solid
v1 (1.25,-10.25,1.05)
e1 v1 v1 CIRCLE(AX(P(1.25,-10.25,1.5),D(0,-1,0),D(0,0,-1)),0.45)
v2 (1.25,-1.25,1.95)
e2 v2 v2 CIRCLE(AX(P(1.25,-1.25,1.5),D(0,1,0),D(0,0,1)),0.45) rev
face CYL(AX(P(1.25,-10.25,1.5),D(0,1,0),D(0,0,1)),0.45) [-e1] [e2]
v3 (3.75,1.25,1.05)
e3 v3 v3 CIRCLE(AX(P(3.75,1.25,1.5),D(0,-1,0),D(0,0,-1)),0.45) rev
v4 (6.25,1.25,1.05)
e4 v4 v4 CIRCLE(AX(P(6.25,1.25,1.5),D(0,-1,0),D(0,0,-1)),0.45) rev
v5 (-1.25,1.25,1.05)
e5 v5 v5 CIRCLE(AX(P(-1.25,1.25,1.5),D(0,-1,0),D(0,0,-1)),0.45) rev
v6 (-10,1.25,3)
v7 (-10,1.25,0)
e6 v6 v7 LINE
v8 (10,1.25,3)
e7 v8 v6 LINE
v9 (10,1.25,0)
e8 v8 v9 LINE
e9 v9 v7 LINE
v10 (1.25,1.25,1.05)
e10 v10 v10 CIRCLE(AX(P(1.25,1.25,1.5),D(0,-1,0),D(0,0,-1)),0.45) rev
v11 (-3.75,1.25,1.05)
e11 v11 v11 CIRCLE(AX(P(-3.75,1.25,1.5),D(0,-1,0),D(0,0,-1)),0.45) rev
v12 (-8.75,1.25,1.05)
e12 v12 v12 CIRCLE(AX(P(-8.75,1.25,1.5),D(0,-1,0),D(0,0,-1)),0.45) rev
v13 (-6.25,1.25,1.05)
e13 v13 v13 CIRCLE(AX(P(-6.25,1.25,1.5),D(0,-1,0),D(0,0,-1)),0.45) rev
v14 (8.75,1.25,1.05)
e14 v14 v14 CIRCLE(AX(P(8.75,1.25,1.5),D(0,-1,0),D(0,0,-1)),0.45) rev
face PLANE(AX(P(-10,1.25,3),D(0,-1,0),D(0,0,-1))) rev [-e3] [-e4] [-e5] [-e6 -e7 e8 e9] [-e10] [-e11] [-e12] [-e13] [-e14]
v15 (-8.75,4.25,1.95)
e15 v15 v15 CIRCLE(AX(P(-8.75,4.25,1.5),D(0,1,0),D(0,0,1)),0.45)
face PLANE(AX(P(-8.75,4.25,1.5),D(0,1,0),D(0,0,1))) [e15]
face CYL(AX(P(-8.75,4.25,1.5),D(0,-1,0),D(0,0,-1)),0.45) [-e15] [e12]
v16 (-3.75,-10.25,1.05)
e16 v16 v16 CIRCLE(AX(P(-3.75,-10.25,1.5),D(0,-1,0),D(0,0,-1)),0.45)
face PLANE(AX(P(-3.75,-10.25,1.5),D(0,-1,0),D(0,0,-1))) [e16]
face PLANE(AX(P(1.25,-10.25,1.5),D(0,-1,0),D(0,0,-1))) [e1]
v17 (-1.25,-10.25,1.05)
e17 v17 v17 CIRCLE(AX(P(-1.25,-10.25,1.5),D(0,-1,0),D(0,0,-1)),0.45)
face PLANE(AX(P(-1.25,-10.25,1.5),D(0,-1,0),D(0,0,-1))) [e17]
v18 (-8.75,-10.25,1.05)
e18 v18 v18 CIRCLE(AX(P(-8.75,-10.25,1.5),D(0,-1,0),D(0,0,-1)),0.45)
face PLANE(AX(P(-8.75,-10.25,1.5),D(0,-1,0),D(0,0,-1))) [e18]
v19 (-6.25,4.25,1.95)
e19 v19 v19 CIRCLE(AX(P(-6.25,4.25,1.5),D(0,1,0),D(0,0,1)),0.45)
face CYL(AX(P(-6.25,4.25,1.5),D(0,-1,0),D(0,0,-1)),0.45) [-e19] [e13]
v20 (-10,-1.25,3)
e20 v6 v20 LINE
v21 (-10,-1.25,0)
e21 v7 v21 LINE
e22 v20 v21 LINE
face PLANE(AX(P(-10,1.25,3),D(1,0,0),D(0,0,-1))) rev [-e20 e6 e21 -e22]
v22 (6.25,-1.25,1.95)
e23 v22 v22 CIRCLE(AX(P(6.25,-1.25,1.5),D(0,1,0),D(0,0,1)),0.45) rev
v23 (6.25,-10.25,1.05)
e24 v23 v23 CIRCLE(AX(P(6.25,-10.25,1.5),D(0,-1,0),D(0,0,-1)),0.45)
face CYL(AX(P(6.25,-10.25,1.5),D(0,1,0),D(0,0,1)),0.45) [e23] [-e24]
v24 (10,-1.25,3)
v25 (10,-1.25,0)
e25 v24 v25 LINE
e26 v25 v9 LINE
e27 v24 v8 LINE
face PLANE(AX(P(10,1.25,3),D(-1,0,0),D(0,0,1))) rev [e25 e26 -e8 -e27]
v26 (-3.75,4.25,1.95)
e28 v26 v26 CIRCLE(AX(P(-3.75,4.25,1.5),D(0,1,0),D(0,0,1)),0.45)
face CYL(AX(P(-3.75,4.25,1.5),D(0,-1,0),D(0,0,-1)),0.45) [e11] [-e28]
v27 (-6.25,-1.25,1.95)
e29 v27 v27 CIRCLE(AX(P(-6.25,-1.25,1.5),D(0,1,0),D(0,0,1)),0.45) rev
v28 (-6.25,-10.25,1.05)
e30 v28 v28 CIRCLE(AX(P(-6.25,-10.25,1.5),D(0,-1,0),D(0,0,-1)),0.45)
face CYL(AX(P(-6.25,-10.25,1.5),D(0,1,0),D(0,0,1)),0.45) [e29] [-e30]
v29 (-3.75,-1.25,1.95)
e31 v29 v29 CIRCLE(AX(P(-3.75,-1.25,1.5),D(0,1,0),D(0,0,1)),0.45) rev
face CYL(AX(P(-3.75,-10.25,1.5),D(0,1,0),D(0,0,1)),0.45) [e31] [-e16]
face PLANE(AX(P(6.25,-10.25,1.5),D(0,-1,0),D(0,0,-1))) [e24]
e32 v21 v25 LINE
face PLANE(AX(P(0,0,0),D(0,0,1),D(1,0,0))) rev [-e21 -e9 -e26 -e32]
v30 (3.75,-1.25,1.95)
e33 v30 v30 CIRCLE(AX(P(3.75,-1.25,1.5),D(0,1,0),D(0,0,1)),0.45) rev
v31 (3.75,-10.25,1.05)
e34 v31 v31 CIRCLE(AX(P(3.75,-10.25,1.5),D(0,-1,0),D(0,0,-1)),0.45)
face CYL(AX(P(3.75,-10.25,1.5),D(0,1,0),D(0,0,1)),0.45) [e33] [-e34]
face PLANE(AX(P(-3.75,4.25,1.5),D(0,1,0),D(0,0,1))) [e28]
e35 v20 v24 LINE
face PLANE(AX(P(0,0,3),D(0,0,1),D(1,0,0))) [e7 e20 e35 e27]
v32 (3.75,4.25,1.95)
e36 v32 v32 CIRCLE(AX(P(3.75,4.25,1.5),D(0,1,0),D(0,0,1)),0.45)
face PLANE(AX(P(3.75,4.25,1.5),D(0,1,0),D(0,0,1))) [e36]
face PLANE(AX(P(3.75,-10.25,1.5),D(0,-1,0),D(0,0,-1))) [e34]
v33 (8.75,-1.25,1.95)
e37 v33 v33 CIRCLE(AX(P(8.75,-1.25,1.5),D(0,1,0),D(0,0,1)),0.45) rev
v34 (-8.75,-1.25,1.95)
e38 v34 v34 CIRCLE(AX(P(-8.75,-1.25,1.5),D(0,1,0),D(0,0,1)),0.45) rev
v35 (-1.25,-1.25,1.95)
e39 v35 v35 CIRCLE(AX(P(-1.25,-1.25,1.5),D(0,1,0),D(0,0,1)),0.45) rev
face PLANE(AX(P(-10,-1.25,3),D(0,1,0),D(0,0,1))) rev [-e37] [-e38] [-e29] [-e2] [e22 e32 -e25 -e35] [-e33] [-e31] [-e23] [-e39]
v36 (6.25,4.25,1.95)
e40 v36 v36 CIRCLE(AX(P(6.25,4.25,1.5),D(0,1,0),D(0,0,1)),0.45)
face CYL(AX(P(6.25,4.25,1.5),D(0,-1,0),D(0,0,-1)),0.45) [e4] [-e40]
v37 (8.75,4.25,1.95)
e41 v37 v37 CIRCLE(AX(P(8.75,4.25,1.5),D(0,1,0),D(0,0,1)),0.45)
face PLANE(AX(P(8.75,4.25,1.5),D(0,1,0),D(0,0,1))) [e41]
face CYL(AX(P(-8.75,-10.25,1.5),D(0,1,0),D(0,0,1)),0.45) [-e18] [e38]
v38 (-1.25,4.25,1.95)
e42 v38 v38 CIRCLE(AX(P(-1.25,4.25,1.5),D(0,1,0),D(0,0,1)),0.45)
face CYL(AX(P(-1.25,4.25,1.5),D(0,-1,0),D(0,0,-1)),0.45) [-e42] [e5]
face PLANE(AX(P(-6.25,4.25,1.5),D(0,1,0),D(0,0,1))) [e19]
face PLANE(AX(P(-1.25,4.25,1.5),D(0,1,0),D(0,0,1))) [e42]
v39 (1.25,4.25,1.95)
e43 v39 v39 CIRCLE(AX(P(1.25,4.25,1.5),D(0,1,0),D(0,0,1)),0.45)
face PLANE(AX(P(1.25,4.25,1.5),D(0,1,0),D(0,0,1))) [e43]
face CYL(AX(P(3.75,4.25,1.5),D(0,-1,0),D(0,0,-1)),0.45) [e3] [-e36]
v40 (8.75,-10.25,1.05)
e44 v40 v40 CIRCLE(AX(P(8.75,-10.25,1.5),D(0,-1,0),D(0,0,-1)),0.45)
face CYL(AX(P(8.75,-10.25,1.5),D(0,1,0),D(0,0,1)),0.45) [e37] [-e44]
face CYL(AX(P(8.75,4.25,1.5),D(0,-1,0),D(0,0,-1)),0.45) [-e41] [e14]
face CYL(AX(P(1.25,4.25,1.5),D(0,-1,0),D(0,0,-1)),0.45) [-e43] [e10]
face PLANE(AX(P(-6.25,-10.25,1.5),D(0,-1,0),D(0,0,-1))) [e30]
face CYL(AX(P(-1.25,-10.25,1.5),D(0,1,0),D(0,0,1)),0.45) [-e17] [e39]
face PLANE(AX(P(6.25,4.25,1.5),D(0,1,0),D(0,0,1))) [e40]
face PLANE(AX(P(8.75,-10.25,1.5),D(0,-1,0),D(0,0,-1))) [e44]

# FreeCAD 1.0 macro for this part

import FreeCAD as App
import Part
import Sketcher
from FreeCAD import Vector

doc = App.newDocument("Part")
body = doc.addObject("PartDesign::Body", "Body")

# Sketch on XY plane
sketch1 = doc.addObject("Sketcher::SketchObject", "Sketch")
body.addObject(sketch1)
sketch1.AttachmentSupport = (doc.XY_Plane, [""])
sketch1.MapMode = "FlatFace"
sketch1.addGeometry(Part.LineSegment(Vector(-10, 1.2, 0), Vector(-10, -1.2, 0)), False)
sketch1.addGeometry(Part.LineSegment(Vector(-10, -1.2, 0), Vector(10, -1.2, 0)), False)
sketch1.addGeometry(Part.LineSegment(Vector(10, -1.2, 0), Vector(10, 1.2, 0)), False)
sketch1.addGeometry(Part.LineSegment(Vector(10, 1.2, 0), Vector(-10, 1.2, 0)), False)
sketch1.addConstraint(Sketcher.Constraint("Coincident", 0, 2, 1, 1))
sketch1.addConstraint(Sketcher.Constraint("Coincident", 1, 2, 2, 1))
sketch1.addConstraint(Sketcher.Constraint("Coincident", 2, 2, 3, 1))
sketch1.addConstraint(Sketcher.Constraint("Coincident", 3, 2, 0, 1))
sketch1.addConstraint(Sketcher.Constraint("Vertical", 0))
sketch1.addConstraint(Sketcher.Constraint("Horizontal", 1))
sketch1.addConstraint(Sketcher.Constraint("Vertical", 2))
sketch1.addConstraint(Sketcher.Constraint("Horizontal", 3))
sketch1.addConstraint(Sketcher.Constraint("Symmetric", 0, 2, 2, 2, -1, 1))
sketch1.addConstraint(Sketcher.Constraint("DistanceX", 1, 1, 1, 2, 20.0))
sketch1.addConstraint(Sketcher.Constraint("DistanceY", 0, 2, 0, 1, 2.5))
pad1 = doc.addObject("PartDesign::Pad", "Pad")
body.addObject(pad1)
pad1.Profile = sketch1
pad1.Length = 3

# Sketch on XZ plane
sketch2 = doc.addObject("Sketcher::SketchObject", "Sketch001")
body.addObject(sketch2)
sketch2.AttachmentSupport = (doc.XZ_Plane, [""])
sketch2.MapMode = "FlatFace"
sketch2.AttachmentOffset = App.Placement(Vector(0, 0, -1.25), App.Rotation())
sketch2.addGeometry(Part.Circle(Vector(-8.75, 1.5, 0), Vector(0, 0, 1), 0.45), False)
sketch2.addGeometry(Part.Circle(Vector(-6.25, 1.5, 0), Vector(0, 0, 1), 0.45), False)
sketch2.addGeometry(Part.Circle(Vector(-3.75, 1.5, 0), Vector(0, 0, 1), 0.45), False)
sketch2.addGeometry(Part.Circle(Vector(-1.25, 1.5, 0), Vector(0, 0, 1), 0.45), False)
sketch2.addGeometry(Part.Circle(Vector(1.25, 1.5, 0), Vector(0, 0, 1), 0.45), False)
sketch2.addGeometry(Part.Circle(Vector(3.75, 1.5, 0), Vector(0, 0, 1), 0.45), False)
sketch2.addGeometry(Part.Circle(Vector(6.25, 1.5, 0), Vector(0, 0, 1), 0.45), False)
sketch2.addGeometry(Part.Circle(Vector(8.75, 1.5, 0), Vector(0, 0, 1), 0.45), False)
sketch2.addConstraint(Sketcher.Constraint("Equal", 0, 1))
sketch2.addConstraint(Sketcher.Constraint("Equal", 1, 2))
sketch2.addConstraint(Sketcher.Constraint("Equal", 2, 3))
sketch2.addConstraint(Sketcher.Constraint("Equal", 3, 4))
sketch2.addConstraint(Sketcher.Constraint("Equal", 4, 5))
sketch2.addConstraint(Sketcher.Constraint("Equal", 5, 6))
sketch2.addConstraint(Sketcher.Constraint("Equal", 6, 7))
sketch2.addConstraint(Sketcher.Constraint("Symmetric", 3, 3, 4, 3, -2))
sketch2.addConstraint(Sketcher.Constraint("Symmetric", 2, 3, 5, 3, -2))
sketch2.addConstraint(Sketcher.Constraint("Symmetric", 1, 3, 6, 3, -2))
sketch2.addConstraint(Sketcher.Constraint("Symmetric", 0, 3, 7, 3, -2))
sketch2.addConstraint(Sketcher.Constraint("Horizontal", 0, 3, 1, 3))
sketch2.addConstraint(Sketcher.Constraint("Horizontal", 1, 3, 2, 3))
sketch2.addConstraint(Sketcher.Constraint("Horizontal", 2, 3, 3, 3))
sketch2.addConstraint(Sketcher.Constraint("Diameter", 0, 0.9))
sketch2.addConstraint(Sketcher.Constraint("DistanceX", 0, 3, 2, 3, 5.0))
sketch2.addConstraint(Sketcher.Constraint("DistanceX", 1, 3, 3, 3, 5.0))
sketch2.addConstraint(Sketcher.Constraint("DistanceX", 2, 3, 4, 3, 5.0))
sketch2.addConstraint(Sketcher.Constraint("DistanceY", -1, 1, 0, 3, 1.5))
sketch2.addConstraint(Sketcher.Constraint("DistanceX", 0, 3, 1, 3, 2.5))
pad2 = doc.addObject("PartDesign::Pad", "Pad001")
body.addObject(pad2)
pad2.Profile = sketch2
pad2.Length = 3
pad2.Reversed = True

# Sketch on XZ plane
sketch3 = doc.addObject("Sketcher::SketchObject", "Sketch002")
body.addObject(sketch3)
sketch3.AttachmentSupport = (doc.XZ_Plane, [""])
sketch3.MapMode = "FlatFace"
sketch3.AttachmentOffset = App.Placement(Vector(0, 0, 1.25), App.Rotation())
sketch3.addGeometry(Part.Circle(Vector(-8.75, 1.5, 0), Vector(0, 0, 1), 0.45), False)
sketch3.addGeometry(Part.Circle(Vector(-6.25, 1.5, 0), Vector(0, 0, 1), 0.45), False)
sketch3.addGeometry(Part.Circle(Vector(-3.75, 1.5, 0), Vector(0, 0, 1), 0.45), False)
sketch3.addGeometry(Part.Circle(Vector(-1.25, 1.5, 0), Vector(0, 0, 1), 0.45), False)
sketch3.addGeometry(Part.Circle(Vector(1.25, 1.5, 0), Vector(0, 0, 1), 0.45), False)
sketch3.addGeometry(Part.Circle(Vector(3.75, 1.5, 0), Vector(0, 0, 1), 0.45), False)
sketch3.addGeometry(Part.Circle(Vector(6.25, 1.5, 0), Vector(0, 0, 1), 0.45), False)
sketch3.addGeometry(Part.Circle(Vector(8.75, 1.5, 0), Vector(0, 0, 1), 0.45), False)
sketch3.addConstraint(Sketcher.Constraint("Equal", 0, 1))
sketch3.addConstraint(Sketcher.Constraint("Equal", 1, 2))
sketch3.addConstraint(Sketcher.Constraint("Equal", 2, 3))
sketch3.addConstraint(Sketcher.Constraint("Equal", 3, 4))
sketch3.addConstraint(Sketcher.Constraint("Equal", 4, 5))
sketch3.addConstraint(Sketcher.Constraint("Equal", 5, 6))
sketch3.addConstraint(Sketcher.Constraint("Equal", 6, 7))
sketch3.addConstraint(Sketcher.Constraint("Symmetric", 3, 3, 4, 3, -2))
sketch3.addConstraint(Sketcher.Constraint("Symmetric", 2, 3, 5, 3, -2))
sketch3.addConstraint(Sketcher.Constraint("Symmetric", 1, 3, 6, 3, -2))
sketch3.addConstraint(Sketcher.Constraint("Symmetric", 0, 3, 7, 3, -2))
sketch3.addConstraint(Sketcher.Constraint("Horizontal", 0, 3, 1, 3))
sketch3.addConstraint(Sketcher.Constraint("Horizontal", 1, 3, 2, 3))
sketch3.addConstraint(Sketcher.Constraint("Horizontal", 2, 3, 3, 3))
sketch3.addConstraint(Sketcher.Constraint("Diameter", 0, 0.9))
sketch3.addConstraint(Sketcher.Constraint("DistanceX", 0, 3, 2, 3, 5.0))
sketch3.addConstraint(Sketcher.Constraint("DistanceX", 1, 3, 3, 3, 5.0))
sketch3.addConstraint(Sketcher.Constraint("DistanceX", 2, 3, 4, 3, 5.0))
sketch3.addConstraint(Sketcher.Constraint("DistanceY", -1, 1, 0, 3, 1.5))
sketch3.addConstraint(Sketcher.Constraint("DistanceX", 0, 3, 1, 3, 2.5))
pad3 = doc.addObject("PartDesign::Pad", "Pad002")
body.addObject(pad3)
pad3.Profile = sketch3
pad3.Length = 9

doc.recompute()
